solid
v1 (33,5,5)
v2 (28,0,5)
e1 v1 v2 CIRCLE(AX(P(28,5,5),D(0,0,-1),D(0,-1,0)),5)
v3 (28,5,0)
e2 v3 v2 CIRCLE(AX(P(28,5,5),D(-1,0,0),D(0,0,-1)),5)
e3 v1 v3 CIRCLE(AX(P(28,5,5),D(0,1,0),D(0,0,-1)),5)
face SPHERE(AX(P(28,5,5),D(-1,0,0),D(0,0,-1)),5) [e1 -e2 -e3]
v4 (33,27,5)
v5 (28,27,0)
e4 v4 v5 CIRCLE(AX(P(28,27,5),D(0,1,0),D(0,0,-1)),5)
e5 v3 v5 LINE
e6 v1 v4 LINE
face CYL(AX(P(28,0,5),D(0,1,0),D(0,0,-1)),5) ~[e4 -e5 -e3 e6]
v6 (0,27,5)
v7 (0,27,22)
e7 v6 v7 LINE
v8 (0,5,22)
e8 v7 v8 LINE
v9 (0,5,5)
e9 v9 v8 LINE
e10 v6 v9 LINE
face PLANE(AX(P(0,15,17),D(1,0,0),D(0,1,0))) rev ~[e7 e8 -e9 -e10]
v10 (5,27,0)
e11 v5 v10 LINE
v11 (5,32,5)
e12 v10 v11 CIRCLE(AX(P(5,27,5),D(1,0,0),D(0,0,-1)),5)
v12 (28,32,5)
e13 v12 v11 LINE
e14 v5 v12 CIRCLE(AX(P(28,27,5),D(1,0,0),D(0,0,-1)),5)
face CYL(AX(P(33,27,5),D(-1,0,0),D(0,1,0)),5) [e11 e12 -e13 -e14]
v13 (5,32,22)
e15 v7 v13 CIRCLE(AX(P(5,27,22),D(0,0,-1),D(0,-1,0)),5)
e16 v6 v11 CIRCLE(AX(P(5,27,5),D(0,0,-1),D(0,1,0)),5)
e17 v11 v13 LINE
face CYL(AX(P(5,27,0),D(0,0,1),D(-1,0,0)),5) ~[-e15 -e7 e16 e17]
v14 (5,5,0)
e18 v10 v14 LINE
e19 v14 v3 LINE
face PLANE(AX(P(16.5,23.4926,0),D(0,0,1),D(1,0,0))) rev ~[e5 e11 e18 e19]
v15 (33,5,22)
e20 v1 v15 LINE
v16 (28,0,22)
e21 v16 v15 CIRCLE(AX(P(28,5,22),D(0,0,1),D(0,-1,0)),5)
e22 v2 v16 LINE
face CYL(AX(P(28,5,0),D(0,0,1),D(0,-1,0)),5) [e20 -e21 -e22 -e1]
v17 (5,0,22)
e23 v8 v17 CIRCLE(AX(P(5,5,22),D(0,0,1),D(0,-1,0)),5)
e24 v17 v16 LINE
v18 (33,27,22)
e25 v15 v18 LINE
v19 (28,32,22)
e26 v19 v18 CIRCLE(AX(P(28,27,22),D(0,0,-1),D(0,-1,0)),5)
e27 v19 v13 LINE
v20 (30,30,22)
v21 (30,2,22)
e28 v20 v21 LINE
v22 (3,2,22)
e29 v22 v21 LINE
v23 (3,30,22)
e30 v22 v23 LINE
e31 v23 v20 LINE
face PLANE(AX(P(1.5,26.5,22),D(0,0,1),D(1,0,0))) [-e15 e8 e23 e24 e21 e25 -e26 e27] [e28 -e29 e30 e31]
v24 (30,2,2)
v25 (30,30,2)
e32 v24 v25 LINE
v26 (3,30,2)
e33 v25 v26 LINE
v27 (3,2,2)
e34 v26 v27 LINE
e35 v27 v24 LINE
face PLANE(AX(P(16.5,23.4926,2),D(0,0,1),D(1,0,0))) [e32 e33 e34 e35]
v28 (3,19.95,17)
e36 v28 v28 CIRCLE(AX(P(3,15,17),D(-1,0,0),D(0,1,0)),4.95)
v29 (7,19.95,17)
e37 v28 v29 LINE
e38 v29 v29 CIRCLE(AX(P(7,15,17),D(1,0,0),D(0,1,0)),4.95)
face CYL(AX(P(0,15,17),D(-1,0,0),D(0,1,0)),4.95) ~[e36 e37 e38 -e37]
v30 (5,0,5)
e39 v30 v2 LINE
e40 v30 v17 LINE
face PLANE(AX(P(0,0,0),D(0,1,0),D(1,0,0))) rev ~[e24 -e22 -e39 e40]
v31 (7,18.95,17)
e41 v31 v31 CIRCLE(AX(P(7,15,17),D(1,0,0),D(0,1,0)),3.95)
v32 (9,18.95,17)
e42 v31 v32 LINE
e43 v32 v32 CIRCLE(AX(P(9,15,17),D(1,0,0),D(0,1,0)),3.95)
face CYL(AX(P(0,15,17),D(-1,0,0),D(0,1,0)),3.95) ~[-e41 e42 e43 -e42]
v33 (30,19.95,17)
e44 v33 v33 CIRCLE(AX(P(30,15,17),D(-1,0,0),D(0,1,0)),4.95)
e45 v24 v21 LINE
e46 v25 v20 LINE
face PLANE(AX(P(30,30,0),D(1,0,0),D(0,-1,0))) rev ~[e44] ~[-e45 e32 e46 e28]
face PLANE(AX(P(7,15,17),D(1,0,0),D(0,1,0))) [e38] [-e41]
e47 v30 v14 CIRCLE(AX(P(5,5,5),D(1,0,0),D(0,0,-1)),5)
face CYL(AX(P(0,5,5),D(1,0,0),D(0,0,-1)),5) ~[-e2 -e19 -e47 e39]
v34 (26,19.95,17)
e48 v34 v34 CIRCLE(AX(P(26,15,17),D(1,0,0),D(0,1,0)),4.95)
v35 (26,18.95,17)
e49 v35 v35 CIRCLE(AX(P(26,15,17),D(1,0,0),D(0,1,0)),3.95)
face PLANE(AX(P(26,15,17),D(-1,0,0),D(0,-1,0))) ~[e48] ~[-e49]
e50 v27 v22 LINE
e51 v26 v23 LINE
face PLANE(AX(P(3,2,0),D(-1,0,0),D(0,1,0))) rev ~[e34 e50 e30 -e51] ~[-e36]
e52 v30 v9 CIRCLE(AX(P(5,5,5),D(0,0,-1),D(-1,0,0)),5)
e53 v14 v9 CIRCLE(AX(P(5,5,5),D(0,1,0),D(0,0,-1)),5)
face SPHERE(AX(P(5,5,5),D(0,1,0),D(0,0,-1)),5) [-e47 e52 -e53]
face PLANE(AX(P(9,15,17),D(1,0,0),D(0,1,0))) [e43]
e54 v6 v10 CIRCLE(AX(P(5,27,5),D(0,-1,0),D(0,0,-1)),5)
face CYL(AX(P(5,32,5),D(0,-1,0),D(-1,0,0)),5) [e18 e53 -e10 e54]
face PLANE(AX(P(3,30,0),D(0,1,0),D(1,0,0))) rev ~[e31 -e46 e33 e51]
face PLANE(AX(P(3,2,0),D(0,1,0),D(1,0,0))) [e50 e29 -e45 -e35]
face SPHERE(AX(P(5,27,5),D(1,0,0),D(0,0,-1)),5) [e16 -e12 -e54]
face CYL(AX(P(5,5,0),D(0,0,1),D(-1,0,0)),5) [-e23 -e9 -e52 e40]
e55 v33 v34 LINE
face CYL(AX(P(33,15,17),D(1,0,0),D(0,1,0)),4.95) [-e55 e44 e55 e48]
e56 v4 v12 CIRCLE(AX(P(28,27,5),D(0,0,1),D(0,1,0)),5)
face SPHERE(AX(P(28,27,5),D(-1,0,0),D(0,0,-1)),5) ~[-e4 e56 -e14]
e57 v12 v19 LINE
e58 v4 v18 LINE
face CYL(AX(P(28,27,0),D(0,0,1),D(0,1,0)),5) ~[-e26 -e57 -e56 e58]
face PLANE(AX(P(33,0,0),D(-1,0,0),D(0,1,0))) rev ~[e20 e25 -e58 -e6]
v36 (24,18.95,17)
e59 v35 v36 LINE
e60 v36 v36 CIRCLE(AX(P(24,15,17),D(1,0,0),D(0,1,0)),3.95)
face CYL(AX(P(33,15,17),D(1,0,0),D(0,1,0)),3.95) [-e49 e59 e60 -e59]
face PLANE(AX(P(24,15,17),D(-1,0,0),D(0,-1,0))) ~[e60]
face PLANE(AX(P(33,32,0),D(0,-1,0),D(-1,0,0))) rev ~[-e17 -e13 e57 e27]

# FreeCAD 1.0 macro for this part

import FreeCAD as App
import Part
import Sketcher

V = App.Vector


def edges_at(feature, points):
    """Names of the edges that pass closest to the given points."""
    edges = feature.Shape.Edges
    near = lambda p: min(range(len(edges)), key=lambda i: edges[i].distToShape(Part.Vertex(*p))[0])
    return sorted({f"Edge{near(p) + 1}" for p in points})

doc = App.newDocument("Part")
body = doc.addObject("PartDesign::Body", "Body")

sketch1 = body.newObject("Sketcher::SketchObject", "Sketch")
sketch1.AttachmentSupport = (doc.getObject("XY_Plane"), [""])
sketch1.MapMode = "FlatFace"
sketch1.addGeometry(Part.LineSegment(V(0, 32, 0), V(0, 0, 0)), False)
sketch1.addGeometry(Part.LineSegment(V(0, 0, 0), V(33, 0, 0)), False)
sketch1.addGeometry(Part.LineSegment(V(33, 0, 0), V(33, 32, 0)), False)
sketch1.addGeometry(Part.LineSegment(V(33, 32, 0), V(0, 32, 0)), False)
sketch1.addGeometry(Part.LineSegment(V(3, 30, 0), V(30, 30, 0)), False)
sketch1.addGeometry(Part.LineSegment(V(30, 30, 0), V(30, 2, 0)), False)
sketch1.addGeometry(Part.LineSegment(V(30, 2, 0), V(3, 2, 0)), False)
sketch1.addGeometry(Part.LineSegment(V(3, 2, 0), V(3, 30, 0)), False)
sketch1.addConstraint(Sketcher.Constraint("Coincident", 0, 2, 1, 1))
sketch1.addConstraint(Sketcher.Constraint("Coincident", 1, 2, 2, 1))
sketch1.addConstraint(Sketcher.Constraint("Coincident", 2, 2, 3, 1))
sketch1.addConstraint(Sketcher.Constraint("Coincident", 3, 2, 0, 1))
sketch1.addConstraint(Sketcher.Constraint("Coincident", 4, 2, 5, 1))
sketch1.addConstraint(Sketcher.Constraint("Coincident", 5, 2, 6, 1))
sketch1.addConstraint(Sketcher.Constraint("Coincident", 6, 2, 7, 1))
sketch1.addConstraint(Sketcher.Constraint("Coincident", 7, 2, 4, 1))
sketch1.addConstraint(Sketcher.Constraint("Vertical", 0))
sketch1.addConstraint(Sketcher.Constraint("Horizontal", 1))
sketch1.addConstraint(Sketcher.Constraint("Vertical", 2))
sketch1.addConstraint(Sketcher.Constraint("Horizontal", 3))
sketch1.addConstraint(Sketcher.Constraint("Horizontal", 4))
sketch1.addConstraint(Sketcher.Constraint("Vertical", 5))
sketch1.addConstraint(Sketcher.Constraint("Horizontal", 6))
sketch1.addConstraint(Sketcher.Constraint("Vertical", 7))
sketch1.addConstraint(Sketcher.Constraint("Coincident", 0, 2, -1, 1))
sketch1.addConstraint(Sketcher.Constraint("DistanceX", 1, 1, 1, 2, 33.0))
sketch1.addConstraint(Sketcher.Constraint("DistanceX", 4, 1, 4, 2, 27.0))
sketch1.addConstraint(Sketcher.Constraint("DistanceY", 0, 2, 0, 1, 32.0))
sketch1.addConstraint(Sketcher.Constraint("DistanceY", 5, 2, 5, 1, 28.0))
sketch1.addConstraint(Sketcher.Constraint("DistanceX", -1, 1, 4, 2, 30.0))
sketch1.addConstraint(Sketcher.Constraint("DistanceY", -1, 1, 4, 2, 30.0))
pad1 = body.newObject("PartDesign::Pad", "Pad")
pad1.Profile = sketch1
pad1.Length = 22

sketch2 = body.newObject("Sketcher::SketchObject", "Sketch001")
sketch2.AttachmentSupport = (doc.getObject("XY_Plane"), [""])
sketch2.MapMode = "FlatFace"
sketch2.addGeometry(Part.LineSegment(V(30, 30, 0), V(3, 30, 0)), False)
sketch2.addGeometry(Part.LineSegment(V(3, 30, 0), V(3, 2, 0)), False)
sketch2.addGeometry(Part.LineSegment(V(3, 2, 0), V(30, 2, 0)), False)
sketch2.addGeometry(Part.LineSegment(V(30, 2, 0), V(30, 30, 0)), False)
sketch2.addConstraint(Sketcher.Constraint("Coincident", 0, 2, 1, 1))
sketch2.addConstraint(Sketcher.Constraint("Coincident", 1, 2, 2, 1))
sketch2.addConstraint(Sketcher.Constraint("Coincident", 2, 2, 3, 1))
sketch2.addConstraint(Sketcher.Constraint("Coincident", 3, 2, 0, 1))
sketch2.addConstraint(Sketcher.Constraint("Horizontal", 0))
sketch2.addConstraint(Sketcher.Constraint("Vertical", 1))
sketch2.addConstraint(Sketcher.Constraint("Horizontal", 2))
sketch2.addConstraint(Sketcher.Constraint("Vertical", 3))
sketch2.addConstraint(Sketcher.Constraint("DistanceX", 0, 2, 0, 1, 27.0))
sketch2.addConstraint(Sketcher.Constraint("DistanceY", 1, 2, 1, 1, 28.0))
sketch2.addConstraint(Sketcher.Constraint("DistanceX", -1, 1, 0, 2, 3.0))
sketch2.addConstraint(Sketcher.Constraint("DistanceY", -1, 1, 0, 2, 30.0))
pad2 = body.newObject("PartDesign::Pad", "Pad001")
pad2.Profile = sketch2
pad2.Length = 2

sketch3 = body.newObject("Sketcher::SketchObject", "Sketch002")
sketch3.AttachmentSupport = (doc.getObject("YZ_Plane"), [""])
sketch3.MapMode = "FlatFace"
sketch3.addGeometry(Part.Circle(V(15, 17, 0), V(0, 0, 1), 4), False)
sketch3.addConstraint(Sketcher.Constraint("Diameter", 0, 7.9))
sketch3.addConstraint(Sketcher.Constraint("DistanceX", -1, 1, 0, 3, 15.0))
sketch3.addConstraint(Sketcher.Constraint("DistanceY", -1, 1, 0, 3, 17.0))
pad3 = body.newObject("PartDesign::Pad", "Pad002")
pad3.Profile = sketch3
pad3.Length = 9
doc.recompute()

fillet = body.newObject("PartDesign::Fillet", "Fillet")
fillet.Base = (pad3, edges_at(pad3, [
    (16.5, 32, 0),
    (0, 16, 0),
    (16.5, 0, 0),
    (33, 16, 0),
    (33, 32, 11),
    (0, 32, 11),
    (0, 0, 11),
    (33, 0, 11),
]))
fillet.Radius = 5

sketch4 = body.newObject("Sketcher::SketchObject", "Sketch003")
sketch4.AttachmentSupport = (doc.getObject("YZ_Plane"), [""])
sketch4.MapMode = "FlatFace"
sketch4.addGeometry(Part.Circle(V(15, 17, 0), V(0, 0, 1), 5), False)
sketch4.addGeometry(Part.Circle(V(15, 17, 0), V(0, 0, 1), 4), False)
sketch4.addConstraint(Sketcher.Constraint("Coincident", 1, 3, 0, 3))
sketch4.addConstraint(Sketcher.Constraint("Diameter", 0, 9.9))
sketch4.addConstraint(Sketcher.Constraint("Diameter", 1, 7.9))
sketch4.addConstraint(Sketcher.Constraint("DistanceX", -1, 1, 0, 3, 15.0))
sketch4.addConstraint(Sketcher.Constraint("DistanceY", -1, 1, 0, 3, 17.0))
pad4 = body.newObject("PartDesign::Pad", "Pad003")
pad4.Profile = sketch4
pad4.Length = 7
body2 = doc.addObject("PartDesign::Body", "Body001")
doc.recompute()

body2.BaseFeature = body
doc.recompute()

mirroring = doc.addObject("Part::Mirroring", "Mirroring")
mirroring.Source = body
mirroring.Base = V(16.5, 0, 0)
mirroring.Normal = V(1, 0, 0)
body3 = doc.addObject("PartDesign::Body", "Body002")
body3.BaseFeature = mirroring
boolean = body2.newObject("PartDesign::Boolean", "Boolean")
boolean.Type = "Fuse"
boolean.addObjects([body3])
doc.recompute()
mirroring.Visibility = False

doc.recompute()
